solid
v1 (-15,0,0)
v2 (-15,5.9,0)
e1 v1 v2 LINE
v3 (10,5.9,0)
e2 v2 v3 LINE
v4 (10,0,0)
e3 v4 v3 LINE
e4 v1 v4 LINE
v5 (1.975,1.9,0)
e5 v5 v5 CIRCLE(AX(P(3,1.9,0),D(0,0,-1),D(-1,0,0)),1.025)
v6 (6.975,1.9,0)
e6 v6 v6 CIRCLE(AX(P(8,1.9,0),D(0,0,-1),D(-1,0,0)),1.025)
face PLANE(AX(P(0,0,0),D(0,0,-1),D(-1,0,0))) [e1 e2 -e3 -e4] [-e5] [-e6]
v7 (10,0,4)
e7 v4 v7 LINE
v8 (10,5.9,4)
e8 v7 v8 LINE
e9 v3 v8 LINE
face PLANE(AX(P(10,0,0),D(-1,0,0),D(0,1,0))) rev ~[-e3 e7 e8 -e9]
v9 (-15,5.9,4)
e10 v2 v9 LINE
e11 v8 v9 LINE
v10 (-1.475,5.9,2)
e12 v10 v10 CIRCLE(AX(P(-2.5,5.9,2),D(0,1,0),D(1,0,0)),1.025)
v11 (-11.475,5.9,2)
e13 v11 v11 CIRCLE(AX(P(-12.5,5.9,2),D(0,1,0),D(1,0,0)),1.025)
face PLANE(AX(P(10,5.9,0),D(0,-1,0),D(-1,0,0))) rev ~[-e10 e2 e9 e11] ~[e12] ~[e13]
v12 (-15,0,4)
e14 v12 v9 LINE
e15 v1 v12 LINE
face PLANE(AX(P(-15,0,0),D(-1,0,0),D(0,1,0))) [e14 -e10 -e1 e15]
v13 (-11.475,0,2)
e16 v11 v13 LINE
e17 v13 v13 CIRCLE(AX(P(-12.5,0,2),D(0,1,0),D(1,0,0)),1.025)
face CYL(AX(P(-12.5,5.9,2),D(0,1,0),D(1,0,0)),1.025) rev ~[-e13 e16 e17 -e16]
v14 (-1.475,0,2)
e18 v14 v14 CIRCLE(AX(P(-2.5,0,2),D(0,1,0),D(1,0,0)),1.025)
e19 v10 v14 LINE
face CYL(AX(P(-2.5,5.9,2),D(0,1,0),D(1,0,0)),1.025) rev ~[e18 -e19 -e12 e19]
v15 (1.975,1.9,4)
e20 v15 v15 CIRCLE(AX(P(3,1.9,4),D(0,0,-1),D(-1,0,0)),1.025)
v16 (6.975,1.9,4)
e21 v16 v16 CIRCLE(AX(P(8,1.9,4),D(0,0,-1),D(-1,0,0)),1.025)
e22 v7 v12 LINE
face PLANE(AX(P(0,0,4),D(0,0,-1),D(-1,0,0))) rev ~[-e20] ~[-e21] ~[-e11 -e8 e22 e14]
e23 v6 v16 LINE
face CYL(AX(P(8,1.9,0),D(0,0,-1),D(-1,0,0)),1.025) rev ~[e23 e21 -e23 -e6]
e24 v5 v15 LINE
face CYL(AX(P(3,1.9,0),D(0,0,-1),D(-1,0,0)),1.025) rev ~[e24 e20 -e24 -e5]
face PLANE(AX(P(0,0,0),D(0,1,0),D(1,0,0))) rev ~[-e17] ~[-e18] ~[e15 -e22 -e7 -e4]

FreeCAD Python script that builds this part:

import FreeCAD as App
import Part
import Sketcher


def add_polygon(sketch, points):
    """Adds a closed chain of lines whose ends are joined by coincident constraints."""
    first, n = sketch.GeometryCount, len(points)
    for a, b in zip(points, points[1:] + points[:1]):
        sketch.addGeometry(Part.LineSegment(App.Vector(*a, 0), App.Vector(*b, 0)), False)
    for i in range(n):
        sketch.addConstraint(Sketcher.Constraint("Coincident", first + i, 2, first + (i + 1) % n, 1))

doc = App.newDocument("Part")
body = doc.addObject("PartDesign::Body", "Body")

# Sketch on XY plane
sketch1 = body.newObject("Sketcher::SketchObject", "Sketch")
sketch1.AttachmentSupport = (doc.getObject("XY_Plane"), [""])
sketch1.MapMode = "FlatFace"
add_polygon(sketch1, [(-15, 0), (0, 0), (0, 6), (-15, 6)])  # lines 0-3
sketch1.addConstraint(Sketcher.Constraint("Horizontal", 0))
sketch1.addConstraint(Sketcher.Constraint("Vertical", 1))
sketch1.addConstraint(Sketcher.Constraint("Horizontal", 2))
sketch1.addConstraint(Sketcher.Constraint("Vertical", 3))
sketch1.addConstraint(Sketcher.Constraint("Coincident", 0, 2, -1, 1))
sketch1.addConstraint(Sketcher.Constraint("DistanceX", 0, 1, 0, 2, 15.0))
sketch1.addConstraint(Sketcher.Constraint("DistanceY", 1, 1, 1, 2, 5.9))
pad1 = body.newObject("PartDesign::Pad", "Pad")
pad1.Profile = sketch1
pad1.Length = 4

# Sketch on XZ plane
sketch2 = body.newObject("Sketcher::SketchObject", "Sketch001")
sketch2.AttachmentSupport = (doc.getObject("XZ_Plane"), [""])
sketch2.MapMode = "FlatFace"
sketch2.AttachmentOffset = App.Placement(App.Vector(0, 0, -5.9), App.Rotation())
sketch2.addGeometry(Part.Circle(App.Vector(-2.5, 2, 0), App.Vector(0, 0, 1), 1), False)
sketch2.addGeometry(Part.Circle(App.Vector(-12.5, 2, 0), App.Vector(0, 0, 1), 1), False)
sketch2.addConstraint(Sketcher.Constraint("Equal", 0, 1))
sketch2.addConstraint(Sketcher.Constraint("Horizontal", 0, 3, 1, 3))
sketch2.addConstraint(Sketcher.Constraint("Diameter", 0, 2.05))
sketch2.addConstraint(Sketcher.Constraint("DistanceY", -1, 1, 0, 3, 2.0))
sketch2.addConstraint(Sketcher.Constraint("DistanceX", 1, 3, 0, 3, 10.0))
sketch2.addConstraint(Sketcher.Constraint("DistanceX", 0, 3, -1, 1, 2.5))
pocket1 = body.newObject("PartDesign::Pocket", "Pocket")
pocket1.Profile = sketch2
pocket1.Length = 8
pocket1.Reversed = True

# Sketch on XY plane
sketch3 = body.newObject("Sketcher::SketchObject", "Sketch002")
sketch3.AttachmentSupport = (doc.getObject("XY_Plane"), [""])
sketch3.MapMode = "FlatFace"
add_polygon(sketch3, [(10, 0), (0, 0), (0, 6), (10, 6)])  # lines 0-3
sketch3.addConstraint(Sketcher.Constraint("Horizontal", 0))
sketch3.addConstraint(Sketcher.Constraint("Vertical", 1))
sketch3.addConstraint(Sketcher.Constraint("Horizontal", 2))
sketch3.addConstraint(Sketcher.Constraint("Vertical", 3))
sketch3.addConstraint(Sketcher.Constraint("Coincident", 0, 2, -1, 1))
sketch3.addConstraint(Sketcher.Constraint("DistanceX", 0, 2, 0, 1, 10.0))
sketch3.addConstraint(Sketcher.Constraint("DistanceY", 1, 1, 1, 2, 5.9))
pad2 = body.newObject("PartDesign::Pad", "Pad001")
pad2.Profile = sketch3
pad2.Length = 4

# Sketch on XY plane
sketch4 = body.newObject("Sketcher::SketchObject", "Sketch003")
sketch4.AttachmentSupport = (doc.getObject("XY_Plane"), [""])
sketch4.MapMode = "FlatFace"
sketch4.addGeometry(Part.Circle(App.Vector(3, 1.9, 0), App.Vector(0, 0, 1), 1), False)
sketch4.addGeometry(Part.Circle(App.Vector(8, 1.9, 0), App.Vector(0, 0, 1), 1), False)
sketch4.addConstraint(Sketcher.Constraint("Equal", 0, 1))
sketch4.addConstraint(Sketcher.Constraint("Horizontal", 0, 3, 1, 3))
sketch4.addConstraint(Sketcher.Constraint("Diameter", 0, 2.05))
sketch4.addConstraint(Sketcher.Constraint("DistanceX", 0, 3, 1, 3, 5.0))
sketch4.addConstraint(Sketcher.Constraint("DistanceX", -1, 1, 0, 3, 3.0))
sketch4.addConstraint(Sketcher.Constraint("DistanceY", -1, 1, 0, 3, 1.9))
pocket2 = body.newObject("PartDesign::Pocket", "Pocket001")
pocket2.Profile = sketch4
pocket2.Length = 4
pocket2.Reversed = True

doc.recompute()
